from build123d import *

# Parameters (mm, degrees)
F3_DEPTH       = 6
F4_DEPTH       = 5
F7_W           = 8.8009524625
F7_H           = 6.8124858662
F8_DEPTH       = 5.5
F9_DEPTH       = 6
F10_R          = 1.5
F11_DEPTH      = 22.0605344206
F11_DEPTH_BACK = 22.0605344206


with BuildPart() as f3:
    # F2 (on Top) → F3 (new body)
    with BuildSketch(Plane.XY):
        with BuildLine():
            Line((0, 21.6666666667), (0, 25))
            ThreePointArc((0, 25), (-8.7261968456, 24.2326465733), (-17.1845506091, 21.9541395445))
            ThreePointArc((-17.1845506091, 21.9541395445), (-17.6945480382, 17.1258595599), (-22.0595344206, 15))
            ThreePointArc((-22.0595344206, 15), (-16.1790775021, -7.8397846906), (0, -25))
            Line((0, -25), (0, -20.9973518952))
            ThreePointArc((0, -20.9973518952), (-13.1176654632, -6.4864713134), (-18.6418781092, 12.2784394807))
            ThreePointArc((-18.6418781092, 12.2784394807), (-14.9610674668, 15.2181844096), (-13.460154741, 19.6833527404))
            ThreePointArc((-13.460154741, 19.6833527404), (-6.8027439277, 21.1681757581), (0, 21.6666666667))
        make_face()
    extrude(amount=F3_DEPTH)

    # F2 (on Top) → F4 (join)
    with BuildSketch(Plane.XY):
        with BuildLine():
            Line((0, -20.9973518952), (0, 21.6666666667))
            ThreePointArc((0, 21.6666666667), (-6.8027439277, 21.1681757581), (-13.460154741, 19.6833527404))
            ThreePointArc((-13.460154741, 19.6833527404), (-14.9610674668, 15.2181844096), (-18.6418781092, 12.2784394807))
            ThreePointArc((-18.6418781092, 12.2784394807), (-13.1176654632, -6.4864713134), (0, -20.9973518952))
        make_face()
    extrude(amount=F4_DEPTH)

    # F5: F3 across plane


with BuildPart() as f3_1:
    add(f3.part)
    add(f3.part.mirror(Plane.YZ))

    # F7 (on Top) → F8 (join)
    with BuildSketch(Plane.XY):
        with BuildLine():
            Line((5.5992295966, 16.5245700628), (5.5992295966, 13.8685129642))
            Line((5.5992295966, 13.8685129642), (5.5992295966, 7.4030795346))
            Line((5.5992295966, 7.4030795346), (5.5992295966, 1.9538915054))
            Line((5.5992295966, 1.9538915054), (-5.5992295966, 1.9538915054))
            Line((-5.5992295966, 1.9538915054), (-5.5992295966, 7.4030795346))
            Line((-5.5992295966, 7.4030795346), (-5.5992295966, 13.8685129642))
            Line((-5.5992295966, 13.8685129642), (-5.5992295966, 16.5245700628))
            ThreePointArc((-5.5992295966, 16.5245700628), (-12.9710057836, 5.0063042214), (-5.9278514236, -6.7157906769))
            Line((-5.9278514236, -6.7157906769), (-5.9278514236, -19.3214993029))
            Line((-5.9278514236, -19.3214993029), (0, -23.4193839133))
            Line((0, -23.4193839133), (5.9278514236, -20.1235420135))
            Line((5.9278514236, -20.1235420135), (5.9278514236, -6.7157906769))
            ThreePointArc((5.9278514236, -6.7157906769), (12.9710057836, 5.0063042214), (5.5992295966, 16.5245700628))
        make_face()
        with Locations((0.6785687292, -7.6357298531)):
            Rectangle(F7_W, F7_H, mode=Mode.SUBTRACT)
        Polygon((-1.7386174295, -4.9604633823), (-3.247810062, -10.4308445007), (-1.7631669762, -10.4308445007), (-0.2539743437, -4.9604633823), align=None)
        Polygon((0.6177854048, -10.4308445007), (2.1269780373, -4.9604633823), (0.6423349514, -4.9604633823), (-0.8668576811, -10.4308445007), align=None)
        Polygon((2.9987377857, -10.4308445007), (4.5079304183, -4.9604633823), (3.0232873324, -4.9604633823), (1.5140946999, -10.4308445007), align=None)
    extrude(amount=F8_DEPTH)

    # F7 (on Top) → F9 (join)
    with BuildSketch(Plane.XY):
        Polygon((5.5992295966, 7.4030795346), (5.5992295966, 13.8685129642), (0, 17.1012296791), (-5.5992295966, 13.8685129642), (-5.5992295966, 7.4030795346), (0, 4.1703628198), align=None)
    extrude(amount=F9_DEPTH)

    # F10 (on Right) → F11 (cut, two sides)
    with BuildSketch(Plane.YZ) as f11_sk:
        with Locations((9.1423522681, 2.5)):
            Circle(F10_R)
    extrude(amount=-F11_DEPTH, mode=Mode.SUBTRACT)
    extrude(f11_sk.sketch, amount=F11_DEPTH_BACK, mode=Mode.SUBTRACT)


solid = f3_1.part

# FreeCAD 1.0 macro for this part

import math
import FreeCAD as App
import Part
import Sketcher
from FreeCAD import Vector
Q = App.Units.Quantity

doc = App.newDocument("Part")
body = doc.addObject("PartDesign::Body", "Body")

# Sketch on XY plane
sketch1 = body.newObject("Sketcher::SketchObject", "Sketch")
sketch1.AttachmentSupport = (doc.getObject("XY_Plane"), [""])
sketch1.MapMode = "FlatFace"
sketch1.addGeometry([
    Part.LineSegment(Vector(0, 21.666667, 0), Vector(0, 25, 0)),  # 0
    Part.ArcOfCircle(Part.Circle(Vector(0, -25, 0), Vector(0, 0, 1), 50), math.radians(90), math.radians(110.101911)),  # 1
    Part.ArcOfCircle(Part.Circle(Vector(-21.794495, 20, 0), Vector(0, 0, 1), 5.00702), math.radians(-93.034291), math.radians(22.971922)),  # 2
    Part.ArcOfCircle(Part.Circle(Vector(25.235731, 15, 0), Vector(0, 0, 1), 47.295265), math.radians(180), math.radians(237.752448)),  # 3
    Part.LineSegment(Vector(0, -25, 0), Vector(0, -20.997352, 0)),  # 4
    Part.ArcOfCircle(Part.Circle(Vector(25.235731, 15, 0), Vector(0, 0, 1), 43.961932), math.radians(-176.450709), math.radians(-125.032149)),  # 5
    Part.ArcOfCircle(Part.Circle(Vector(-21.794495, 20, 0), Vector(0, 0, 1), 8.340353), math.radians(-67.79042), math.radians(-2.175797)),  # 6
    Part.ArcOfCircle(Part.Circle(Vector(0, -25, 0), Vector(0, 0, 1), 46.666667), math.radians(90), math.radians(106.764099)),  # 7
], False)
sketch1.addConstraint([
    Sketcher.Constraint("Coincident", 0, 2, 1, 1),
    Sketcher.Constraint("Coincident", 1, 2, 2, 2),
    Sketcher.Constraint("Coincident", 2, 1, 3, 1),
    Sketcher.Constraint("Coincident", 3, 2, 4, 1),
    Sketcher.Constraint("Coincident", 4, 2, 5, 2),
    Sketcher.Constraint("Coincident", 5, 1, 6, 1),
    Sketcher.Constraint("Coincident", 6, 2, 7, 2),
    Sketcher.Constraint("Coincident", 7, 1, 0, 1),
    Sketcher.Constraint("Vertical", 0),
    Sketcher.Constraint("Vertical", 4),
    Sketcher.Constraint("Coincident", 5, 3, 3, 3),
    Sketcher.Constraint("Coincident", 6, 3, 2, 3),
    Sketcher.Constraint("Coincident", 7, 3, 1, 3),
    Sketcher.Constraint("Coincident", 3, 2, 1, 3),
    Sketcher.Constraint("Symmetric", 0, 2, 3, 2, -1, 1),
    Sketcher.Constraint("PointOnObject", 1, 3, -2),
    Sketcher.Constraint("Horizontal", 5, 3, 2, 1),
    Sketcher.Constraint("Radius", 1, 50.0),
    Sketcher.Constraint("DistanceY", -1, 1, 2, 3, 20.0),
    Sketcher.Constraint("DistanceY", -1, 1, 3, 3, 15.0),
    Sketcher.Constraint("Radius", 2, 5.00702),
    Sketcher.Constraint("Radius", 5, 43.961932),
    Sketcher.Constraint("Radius", 3, 47.295265),
    Sketcher.Constraint("Radius", 6, 8.340353),
    Sketcher.Constraint("Radius", 7, 46.666667),
])
pad1 = body.newObject("PartDesign::Pad", "Pad")
pad1.Profile = sketch1
pad1.Length = 6

# Sketch on XY plane
sketch2 = body.newObject("Sketcher::SketchObject", "Sketch001")
sketch2.AttachmentSupport = (doc.getObject("XY_Plane"), [""])
sketch2.MapMode = "FlatFace"
sketch2.addGeometry([
    Part.LineSegment(Vector(0, -20.997352, 0), Vector(0, 21.666667, 0)),
    Part.ArcOfCircle(Part.Circle(Vector(0, -25, 0), Vector(0, 0, 1), 46.666667), math.radians(90), math.radians(106.764099)),
    Part.ArcOfCircle(Part.Circle(Vector(-21.794495, 20, 0), Vector(0, 0, 1), 8.340353), math.radians(-67.79042), math.radians(-2.175797)),
    Part.ArcOfCircle(Part.Circle(Vector(25.235731, 15, 0), Vector(0, 0, 1), 43.961932), math.radians(-176.450709), math.radians(-125.032149)),
], False)
sketch2.addConstraint([
    Sketcher.Constraint("Coincident", 0, 2, 1, 1),
    Sketcher.Constraint("Coincident", 1, 2, 2, 2),
    Sketcher.Constraint("Coincident", 2, 1, 3, 1),
    Sketcher.Constraint("Coincident", 3, 2, 0, 1),
    Sketcher.Constraint("Vertical", 0),
    Sketcher.Constraint("PointOnObject", 1, 3, -2),
    Sketcher.Constraint("PointOnObject", 0, 2, -2),
    Sketcher.Constraint("DistanceY", 1, 3, -1, 1, 25.0),
    Sketcher.Constraint("DistanceY", -1, 1, 2, 3, 20.0),
    Sketcher.Constraint("DistanceY", -1, 1, 3, 3, 15.0),
    Sketcher.Constraint("Radius", 3, 43.961932),
    Sketcher.Constraint("Radius", 1, 46.666667),
    Sketcher.Constraint("Radius", 2, 8.340353),
    Sketcher.Constraint("DistanceY", 0, 1, 0, 2, 42.664019),
    Sketcher.Constraint("DistanceX", 2, 1, -1, 1, 18.641878),
])
pad2 = body.newObject("PartDesign::Pad", "Pad001")
pad2.Profile = sketch2
pad2.Length = 5
body2 = doc.addObject("PartDesign::Body", "Body001")
doc.recompute()

body2.BaseFeature = body
doc.recompute()

mirroring = doc.addObject("Part::Mirroring", "Mirroring")
mirroring.Source = body
mirroring.Base = Vector(0, 0, 0)
mirroring.Normal = Vector(1, 0, 0)
body3 = doc.addObject("PartDesign::Body", "Body002")
body3.BaseFeature = mirroring
boolean = body2.newObject("PartDesign::Boolean", "Boolean")
boolean.Type = "Fuse"
boolean.addObjects([body3])
doc.recompute()

# Sketch on XY plane
sketch3 = body2.newObject("Sketcher::SketchObject", "Sketch002")
sketch3.AttachmentSupport = (doc.getObject("XY_Plane001"), [""])
sketch3.MapMode = "FlatFace"
sketch3.addGeometry([
    Part.LineSegment(Vector(5.59923, 16.52457, 0), Vector(5.59923, 1.953892, 0)),  # 0
    Part.LineSegment(Vector(5.59923, 1.953892, 0), Vector(-5.59923, 1.953892, 0)),  # 1
    Part.LineSegment(Vector(-5.59923, 1.953892, 0), Vector(-5.59923, 16.52457, 0)),  # 2
    Part.ArcOfCircle(Part.Circle(Vector(0, 4.822892, 0), Vector(0, 0, 1), 12.972302), math.radians(115.571023), math.radians(242.808745)),  # 3
    Part.LineSegment(Vector(-5.927851, -6.715791, 0), Vector(-5.927851, -19.321499, 0)),  # 4
    Part.LineSegment(Vector(-5.927851, -19.321499, 0), Vector(0, -23.419384, 0)),  # 5
    Part.LineSegment(Vector(0, -23.419384, 0), Vector(5.927851, -20.123542, 0)),  # 6
    Part.LineSegment(Vector(5.927851, -20.123542, 0), Vector(5.927851, -6.715791, 0)),  # 7
    Part.ArcOfCircle(Part.Circle(Vector(0, 4.822892, 0), Vector(0, 0, 1), 12.972302), math.radians(-62.808745), math.radians(64.428977)),  # 8
    Part.LineSegment(Vector(5.079045, -11.041973, 0), Vector(-3.721908, -11.041973, 0)),  # 9
    Part.LineSegment(Vector(-3.721908, -11.041973, 0), Vector(-3.721908, -4.229487, 0)),  # 10
    Part.LineSegment(Vector(-3.721908, -4.229487, 0), Vector(5.079045, -4.229487, 0)),  # 11
    Part.LineSegment(Vector(5.079045, -4.229487, 0), Vector(5.079045, -11.041973, 0)),  # 12
    Part.LineSegment(Vector(-1.738617, -4.960463, 0), Vector(-3.24781, -10.430845, 0)),  # 13
    Part.LineSegment(Vector(-3.24781, -10.430845, 0), Vector(-1.763167, -10.430845, 0)),  # 14
    Part.LineSegment(Vector(-1.763167, -10.430845, 0), Vector(-0.253974, -4.960463, 0)),  # 15
    Part.LineSegment(Vector(-0.253974, -4.960463, 0), Vector(-1.738617, -4.960463, 0)),  # 16
    Part.LineSegment(Vector(0.617785, -10.430845, 0), Vector(2.126978, -4.960463, 0)),  # 17
    Part.LineSegment(Vector(2.126978, -4.960463, 0), Vector(0.642335, -4.960463, 0)),  # 18
    Part.LineSegment(Vector(0.642335, -4.960463, 0), Vector(-0.866858, -10.430845, 0)),  # 19
    Part.LineSegment(Vector(-0.866858, -10.430845, 0), Vector(0.617785, -10.430845, 0)),  # 20
    Part.LineSegment(Vector(2.998738, -10.430845, 0), Vector(4.50793, -4.960463, 0)),  # 21
    Part.LineSegment(Vector(4.50793, -4.960463, 0), Vector(3.023287, -4.960463, 0)),  # 22
    Part.LineSegment(Vector(3.023287, -4.960463, 0), Vector(1.514095, -10.430845, 0)),  # 23
    Part.LineSegment(Vector(1.514095, -10.430845, 0), Vector(2.998738, -10.430845, 0)),  # 24
], False)
sketch3.addConstraint([
    Sketcher.Constraint("Coincident", 0, 2, 1, 1),
    Sketcher.Constraint("Coincident", 1, 2, 2, 1),
    Sketcher.Constraint("Coincident", 2, 2, 3, 1),
    Sketcher.Constraint("Coincident", 3, 2, 4, 1),
    Sketcher.Constraint("Coincident", 4, 2, 5, 1),
    Sketcher.Constraint("Coincident", 5, 2, 6, 1),
    Sketcher.Constraint("Coincident", 6, 2, 7, 1),
    Sketcher.Constraint("Coincident", 7, 2, 8, 1),
    Sketcher.Constraint("Coincident", 8, 2, 0, 1),
    Sketcher.Constraint("Coincident", 9, 2, 10, 1),
    Sketcher.Constraint("Coincident", 10, 2, 11, 1),
    Sketcher.Constraint("Coincident", 11, 2, 12, 1),
    Sketcher.Constraint("Coincident", 12, 2, 9, 1),
    Sketcher.Constraint("Coincident", 13, 2, 14, 1),
    Sketcher.Constraint("Coincident", 14, 2, 15, 1),
    Sketcher.Constraint("Coincident", 15, 2, 16, 1),
    Sketcher.Constraint("Coincident", 16, 2, 13, 1),
    Sketcher.Constraint("Coincident", 17, 2, 18, 1),
    Sketcher.Constraint("Coincident", 18, 2, 19, 1),
    Sketcher.Constraint("Coincident", 19, 2, 20, 1),
    Sketcher.Constraint("Coincident", 20, 2, 17, 1),
    Sketcher.Constraint("Coincident", 21, 2, 22, 1),
    Sketcher.Constraint("Coincident", 22, 2, 23, 1),
    Sketcher.Constraint("Coincident", 23, 2, 24, 1),
    Sketcher.Constraint("Coincident", 24, 2, 21, 1),
    Sketcher.Constraint("Vertical", 0),
    Sketcher.Constraint("Horizontal", 1),
    Sketcher.Constraint("Vertical", 2),
    Sketcher.Constraint("Vertical", 4),
    Sketcher.Constraint("Vertical", 7),
    Sketcher.Constraint("Horizontal", 9),
    Sketcher.Constraint("Vertical", 10),
    Sketcher.Constraint("Horizontal", 11),
    Sketcher.Constraint("Vertical", 12),
    Sketcher.Constraint("Horizontal", 14),
    Sketcher.Constraint("Horizontal", 16),
    Sketcher.Constraint("Horizontal", 18),
    Sketcher.Constraint("Horizontal", 20),
    Sketcher.Constraint("Horizontal", 22),
    Sketcher.Constraint("Horizontal", 24),
    Sketcher.Constraint("Coincident", 8, 3, 3, 3),
    Sketcher.Constraint("Equal", 3, 8),
    Sketcher.Constraint("Symmetric", 3, 2, 7, 2, -2),
    Sketcher.Constraint("PointOnObject", 5, 2, -2),
    Sketcher.Constraint("Parallel", 13, 15),
    Sketcher.Constraint("Parallel", 15, 17),
    Sketcher.Constraint("Parallel", 17, 19),
    Sketcher.Constraint("Parallel", 19, 21),
    Sketcher.Constraint("Parallel", 21, 23),
    Sketcher.Constraint("Horizontal", 2, 2, 8, 2),
    Sketcher.Constraint("Horizontal", 16, 2, 17, 2),
    Sketcher.Constraint("Horizontal", 14, 2, 19, 2),
    Sketcher.Constraint("Horizontal", 18, 2, 21, 2),
    Sketcher.Constraint("Horizontal", 20, 2, 23, 2),
    Sketcher.Constraint("Equal", 16, 18),
    Sketcher.Constraint("Equal", 20, 22),
    Sketcher.Constraint("Radius", 3, 12.972302),
    Sketcher.Constraint("DistanceY", 0, 2, 3, 3, 2.869001),
    Sketcher.Constraint("DistanceX", 1, 2, 1, 1, 11.198459),
    Sketcher.Constraint("DistanceY", 4, 2, 4, 1, 12.605709),
    Sketcher.Constraint("DistanceY", 7, 1, 7, 2, 13.407751),
    Sketcher.Constraint("DistanceY", 4, 2, -1, 1, 19.321499),
    Sketcher.Constraint("Distance", 5, 7.206392),
    Sketcher.Constraint("DistanceX", 9, 2, 9, 1, 8.800952),
    Sketcher.Constraint("DistanceX", 14, 1, 14, 2, 1.484643),
    Sketcher.Constraint("DistanceY", 10, 1, 10, 2, 6.812486),
    Sketcher.Constraint("DistanceY", -1, 1, 0, 2, 1.953892),
    Sketcher.Constraint("DistanceX", 13, 2, -1, 1, 3.24781),
    Sketcher.Constraint("DistanceX", -1, 1, 17, 2, 2.126978),
    Sketcher.Constraint("DistanceX", -1, 1, 21, 2, 4.50793),
    Sketcher.Constraint("DistanceX", 9, 2, 7, 2, 9.649759),
    Sketcher.Constraint("DistanceY", 5, 2, 9, 2, 12.377411),
    Sketcher.Constraint("DistanceY", 9, 2, 13, 2, 0.611128),
    Sketcher.Constraint("DistanceX", 15, 2, 11, 2, 5.333019),
    Sketcher.Constraint("DistanceY", 14, 2, 15, 2, 5.470381),
])
pad3 = body2.newObject("PartDesign::Pad", "Pad002")
pad3.Profile = sketch3
pad3.Length = 5.5

# Sketch on XY plane
sketch4 = body2.newObject("Sketcher::SketchObject", "Sketch003")
sketch4.AttachmentSupport = (doc.getObject("XY_Plane001"), [""])
sketch4.MapMode = "FlatFace"
sketch4.addGeometry([
    Part.LineSegment(Vector(5.59923, 7.40308, 0), Vector(5.59923, 13.868513, 0)),  # 0
    Part.LineSegment(Vector(5.59923, 13.868513, 0), Vector(0, 17.10123, 0)),  # 1
    Part.LineSegment(Vector(0, 17.10123, 0), Vector(-5.59923, 13.868513, 0)),  # 2
    Part.LineSegment(Vector(-5.59923, 13.868513, 0), Vector(-5.59923, 7.40308, 0)),  # 3
    Part.LineSegment(Vector(-5.59923, 7.40308, 0), Vector(0, 4.170363, 0)),  # 4
    Part.LineSegment(Vector(0, 4.170363, 0), Vector(5.59923, 7.40308, 0)),  # 5
], False)
sketch4.addConstraint([
    Sketcher.Constraint("Coincident", 0, 2, 1, 1),
    Sketcher.Constraint("Coincident", 1, 2, 2, 1),
    Sketcher.Constraint("Coincident", 2, 2, 3, 1),
    Sketcher.Constraint("Coincident", 3, 2, 4, 1),
    Sketcher.Constraint("Coincident", 4, 2, 5, 1),
    Sketcher.Constraint("Coincident", 5, 2, 0, 1),
    Sketcher.Constraint("Vertical", 0),
    Sketcher.Constraint("Vertical", 3),
    Sketcher.Constraint("Symmetric", 0, 2, 2, 2, -2),
    Sketcher.Constraint("PointOnObject", 1, 2, -2),
    Sketcher.Constraint("PointOnObject", 4, 2, -2),
    Sketcher.Constraint("Parallel", 1, 4),
    Sketcher.Constraint("Parallel", 2, 5),
    Sketcher.Constraint("Angle", 1, Q("150 deg")),
    Sketcher.Constraint("DistanceY", 0, 1, 0, 2, 6.465433),
    Sketcher.Constraint("DistanceX", -1, 1, 0, 2, 5.59923),
    Sketcher.Constraint("DistanceY", -1, 1, 1, 2, 17.10123),
])
pad4 = body2.newObject("PartDesign::Pad", "Pad003")
pad4.Profile = sketch4
pad4.Length = 6

# Sketch on YZ plane
sketch5 = body2.newObject("Sketcher::SketchObject", "Sketch004")
sketch5.AttachmentSupport = (doc.getObject("YZ_Plane001"), [""])
sketch5.MapMode = "FlatFace"
sketch5.addGeometry(Part.Circle(Vector(9.142352, 2.5, 0), Vector(0, 0, 1), 1.5), False)
sketch5.addConstraint([
    Sketcher.Constraint("Diameter", 0, 3.0),
    Sketcher.Constraint("DistanceY", -1, 1, 0, 3, 2.5),
    Sketcher.Constraint("DistanceX", -1, 1, 0, 3, 9.142352),
])
pocket1 = body2.newObject("PartDesign::Pocket", "Pocket")
pocket1.Profile = sketch5
pocket1.Type = "ThroughAll"
pocket1.Midplane = True
mirroring.Visibility = False

doc.recompute()
